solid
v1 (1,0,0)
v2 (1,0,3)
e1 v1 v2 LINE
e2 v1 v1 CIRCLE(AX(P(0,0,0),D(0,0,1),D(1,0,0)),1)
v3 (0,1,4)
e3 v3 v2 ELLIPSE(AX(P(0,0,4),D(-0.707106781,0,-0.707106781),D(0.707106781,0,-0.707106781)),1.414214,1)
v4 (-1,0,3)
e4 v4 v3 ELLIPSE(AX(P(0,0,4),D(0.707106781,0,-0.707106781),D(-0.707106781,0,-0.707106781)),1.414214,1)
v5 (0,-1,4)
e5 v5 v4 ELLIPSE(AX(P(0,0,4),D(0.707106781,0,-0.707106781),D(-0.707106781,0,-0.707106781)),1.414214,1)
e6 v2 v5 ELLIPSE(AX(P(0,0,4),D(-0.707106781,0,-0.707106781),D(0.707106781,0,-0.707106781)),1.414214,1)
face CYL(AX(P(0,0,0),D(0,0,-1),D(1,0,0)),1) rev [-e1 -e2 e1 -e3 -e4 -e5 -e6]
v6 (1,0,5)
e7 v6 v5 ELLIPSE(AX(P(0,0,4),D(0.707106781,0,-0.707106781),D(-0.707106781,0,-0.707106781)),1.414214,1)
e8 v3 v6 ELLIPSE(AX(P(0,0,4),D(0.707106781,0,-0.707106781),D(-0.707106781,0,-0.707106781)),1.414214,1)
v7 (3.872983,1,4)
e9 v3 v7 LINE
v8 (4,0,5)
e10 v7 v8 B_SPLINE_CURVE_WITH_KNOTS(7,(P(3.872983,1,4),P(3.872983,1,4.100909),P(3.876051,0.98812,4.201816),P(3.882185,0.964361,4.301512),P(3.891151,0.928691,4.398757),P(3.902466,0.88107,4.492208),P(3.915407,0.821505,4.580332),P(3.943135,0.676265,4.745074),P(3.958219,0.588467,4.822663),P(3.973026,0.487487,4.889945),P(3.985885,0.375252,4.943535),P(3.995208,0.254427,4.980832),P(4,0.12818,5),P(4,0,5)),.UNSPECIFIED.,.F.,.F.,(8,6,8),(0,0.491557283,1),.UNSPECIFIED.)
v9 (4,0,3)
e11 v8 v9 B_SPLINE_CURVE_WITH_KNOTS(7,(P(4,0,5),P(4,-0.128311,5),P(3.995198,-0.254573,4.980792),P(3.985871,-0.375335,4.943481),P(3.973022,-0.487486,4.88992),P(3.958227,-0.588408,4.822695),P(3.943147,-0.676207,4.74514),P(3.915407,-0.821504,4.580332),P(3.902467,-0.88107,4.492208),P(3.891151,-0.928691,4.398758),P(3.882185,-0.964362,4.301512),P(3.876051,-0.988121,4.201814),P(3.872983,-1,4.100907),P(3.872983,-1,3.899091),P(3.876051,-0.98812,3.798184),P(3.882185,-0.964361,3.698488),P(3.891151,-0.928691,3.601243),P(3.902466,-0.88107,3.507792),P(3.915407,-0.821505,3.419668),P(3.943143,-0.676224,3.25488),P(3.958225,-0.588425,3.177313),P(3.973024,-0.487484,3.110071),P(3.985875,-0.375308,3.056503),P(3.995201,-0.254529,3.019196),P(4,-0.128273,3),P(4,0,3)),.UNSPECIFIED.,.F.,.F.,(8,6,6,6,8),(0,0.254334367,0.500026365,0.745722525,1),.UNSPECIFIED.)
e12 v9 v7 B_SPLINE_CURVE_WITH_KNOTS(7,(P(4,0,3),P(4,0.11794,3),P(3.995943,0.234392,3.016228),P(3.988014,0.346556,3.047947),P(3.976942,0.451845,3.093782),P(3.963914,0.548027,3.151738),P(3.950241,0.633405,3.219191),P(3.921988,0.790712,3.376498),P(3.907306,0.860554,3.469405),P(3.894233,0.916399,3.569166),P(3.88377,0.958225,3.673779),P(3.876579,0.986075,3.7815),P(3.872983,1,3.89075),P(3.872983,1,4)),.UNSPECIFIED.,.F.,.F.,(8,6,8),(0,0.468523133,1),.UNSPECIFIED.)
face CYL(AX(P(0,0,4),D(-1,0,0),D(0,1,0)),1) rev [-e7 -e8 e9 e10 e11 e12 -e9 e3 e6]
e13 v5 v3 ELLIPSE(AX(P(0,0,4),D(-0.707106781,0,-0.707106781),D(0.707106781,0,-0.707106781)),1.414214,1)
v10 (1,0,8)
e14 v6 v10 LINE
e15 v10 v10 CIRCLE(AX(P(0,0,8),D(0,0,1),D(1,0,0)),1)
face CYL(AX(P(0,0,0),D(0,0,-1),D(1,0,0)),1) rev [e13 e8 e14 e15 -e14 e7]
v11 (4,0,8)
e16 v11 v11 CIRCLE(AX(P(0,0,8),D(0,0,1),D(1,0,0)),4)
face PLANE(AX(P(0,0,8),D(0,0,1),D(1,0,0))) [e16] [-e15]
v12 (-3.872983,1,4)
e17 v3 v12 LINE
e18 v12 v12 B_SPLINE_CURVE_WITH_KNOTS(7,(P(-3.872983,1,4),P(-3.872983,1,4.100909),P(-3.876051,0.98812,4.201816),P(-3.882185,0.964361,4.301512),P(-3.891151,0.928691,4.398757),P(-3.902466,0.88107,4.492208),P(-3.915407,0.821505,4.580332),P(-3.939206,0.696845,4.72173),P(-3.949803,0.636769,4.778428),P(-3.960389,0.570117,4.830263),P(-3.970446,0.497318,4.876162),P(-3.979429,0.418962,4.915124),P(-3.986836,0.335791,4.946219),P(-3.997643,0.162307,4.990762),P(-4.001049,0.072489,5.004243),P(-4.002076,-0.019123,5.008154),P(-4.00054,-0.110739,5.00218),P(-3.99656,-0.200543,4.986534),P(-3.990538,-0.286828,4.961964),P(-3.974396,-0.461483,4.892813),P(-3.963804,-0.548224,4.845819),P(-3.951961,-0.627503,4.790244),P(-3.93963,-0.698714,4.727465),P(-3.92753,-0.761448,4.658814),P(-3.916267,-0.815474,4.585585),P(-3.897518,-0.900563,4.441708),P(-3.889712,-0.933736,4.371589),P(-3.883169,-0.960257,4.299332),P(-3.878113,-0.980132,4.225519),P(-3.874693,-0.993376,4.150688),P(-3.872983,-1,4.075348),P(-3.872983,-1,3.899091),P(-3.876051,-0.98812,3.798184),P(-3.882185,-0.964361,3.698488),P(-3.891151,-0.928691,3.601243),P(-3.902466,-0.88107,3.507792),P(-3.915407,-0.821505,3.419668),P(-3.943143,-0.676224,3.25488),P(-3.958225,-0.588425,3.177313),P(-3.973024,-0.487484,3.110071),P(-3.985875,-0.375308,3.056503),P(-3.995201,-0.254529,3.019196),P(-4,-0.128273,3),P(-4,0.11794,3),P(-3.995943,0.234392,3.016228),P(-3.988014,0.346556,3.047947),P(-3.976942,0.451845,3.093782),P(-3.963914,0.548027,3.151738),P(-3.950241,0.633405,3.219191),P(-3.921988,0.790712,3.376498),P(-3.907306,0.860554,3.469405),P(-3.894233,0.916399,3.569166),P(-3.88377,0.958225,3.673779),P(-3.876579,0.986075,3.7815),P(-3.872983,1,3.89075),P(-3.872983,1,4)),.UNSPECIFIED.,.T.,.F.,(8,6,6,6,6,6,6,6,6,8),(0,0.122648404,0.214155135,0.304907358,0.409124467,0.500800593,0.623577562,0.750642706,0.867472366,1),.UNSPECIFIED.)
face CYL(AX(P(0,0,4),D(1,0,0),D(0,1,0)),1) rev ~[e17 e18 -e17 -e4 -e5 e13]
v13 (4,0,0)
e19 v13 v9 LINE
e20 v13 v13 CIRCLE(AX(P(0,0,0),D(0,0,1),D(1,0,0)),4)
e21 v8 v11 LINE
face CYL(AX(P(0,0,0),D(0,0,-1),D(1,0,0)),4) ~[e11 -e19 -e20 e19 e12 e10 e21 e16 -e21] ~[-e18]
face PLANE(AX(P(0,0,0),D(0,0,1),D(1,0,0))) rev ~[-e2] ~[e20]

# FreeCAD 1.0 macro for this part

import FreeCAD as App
import Part
import Sketcher
from FreeCAD import Vector
Q = App.Units.Quantity

doc = App.newDocument("Part")
body = doc.addObject("PartDesign::Body", "Body")

sketch1 = body.newObject("Sketcher::SketchObject", "Sketch")
sketch1.AttachmentSupport = (doc.getObject("XY_Plane"), [""])
sketch1.MapMode = "FlatFace"
sketch1.addGeometry([
    Part.Circle(Vector(0, 0, 0), Vector(0, 0, 1), 4),
    Part.Circle(Vector(0, 0, 0), Vector(0, 0, 1), 1),
], False)
sketch1.addConstraint([
    Sketcher.Constraint("Coincident", 0, 3, -1, 1),
    Sketcher.Constraint("Coincident", 1, 3, -1, 1),
    Sketcher.Constraint("Diameter", 0, Q("8 mm")),
    Sketcher.Constraint("Diameter", 1, Q("2 mm")),
])
pad1 = body.newObject("PartDesign::Pad", "Pad")
pad1.Profile = sketch1
pad1.Length = 8

sketch2 = body.newObject("Sketcher::SketchObject", "Sketch001")
sketch2.AttachmentSupport = (doc.getObject("YZ_Plane"), [""])
sketch2.MapMode = "FlatFace"
sketch2.addGeometry(Part.Circle(Vector(0, 4, 0), Vector(0, 0, 1), 1), False)
sketch2.addConstraint([
    Sketcher.Constraint("PointOnObject", 0, 3, -2),
    Sketcher.Constraint("Diameter", 0, Q("2 mm")),
    Sketcher.Constraint("DistanceY", -1, 1, 0, 3, Q("4 mm")),
])
pocket1 = body.newObject("PartDesign::Pocket", "Pocket")
pocket1.Profile = sketch2
pocket1.Type = "ThroughAll"
pocket1.Midplane = True

doc.recompute()
